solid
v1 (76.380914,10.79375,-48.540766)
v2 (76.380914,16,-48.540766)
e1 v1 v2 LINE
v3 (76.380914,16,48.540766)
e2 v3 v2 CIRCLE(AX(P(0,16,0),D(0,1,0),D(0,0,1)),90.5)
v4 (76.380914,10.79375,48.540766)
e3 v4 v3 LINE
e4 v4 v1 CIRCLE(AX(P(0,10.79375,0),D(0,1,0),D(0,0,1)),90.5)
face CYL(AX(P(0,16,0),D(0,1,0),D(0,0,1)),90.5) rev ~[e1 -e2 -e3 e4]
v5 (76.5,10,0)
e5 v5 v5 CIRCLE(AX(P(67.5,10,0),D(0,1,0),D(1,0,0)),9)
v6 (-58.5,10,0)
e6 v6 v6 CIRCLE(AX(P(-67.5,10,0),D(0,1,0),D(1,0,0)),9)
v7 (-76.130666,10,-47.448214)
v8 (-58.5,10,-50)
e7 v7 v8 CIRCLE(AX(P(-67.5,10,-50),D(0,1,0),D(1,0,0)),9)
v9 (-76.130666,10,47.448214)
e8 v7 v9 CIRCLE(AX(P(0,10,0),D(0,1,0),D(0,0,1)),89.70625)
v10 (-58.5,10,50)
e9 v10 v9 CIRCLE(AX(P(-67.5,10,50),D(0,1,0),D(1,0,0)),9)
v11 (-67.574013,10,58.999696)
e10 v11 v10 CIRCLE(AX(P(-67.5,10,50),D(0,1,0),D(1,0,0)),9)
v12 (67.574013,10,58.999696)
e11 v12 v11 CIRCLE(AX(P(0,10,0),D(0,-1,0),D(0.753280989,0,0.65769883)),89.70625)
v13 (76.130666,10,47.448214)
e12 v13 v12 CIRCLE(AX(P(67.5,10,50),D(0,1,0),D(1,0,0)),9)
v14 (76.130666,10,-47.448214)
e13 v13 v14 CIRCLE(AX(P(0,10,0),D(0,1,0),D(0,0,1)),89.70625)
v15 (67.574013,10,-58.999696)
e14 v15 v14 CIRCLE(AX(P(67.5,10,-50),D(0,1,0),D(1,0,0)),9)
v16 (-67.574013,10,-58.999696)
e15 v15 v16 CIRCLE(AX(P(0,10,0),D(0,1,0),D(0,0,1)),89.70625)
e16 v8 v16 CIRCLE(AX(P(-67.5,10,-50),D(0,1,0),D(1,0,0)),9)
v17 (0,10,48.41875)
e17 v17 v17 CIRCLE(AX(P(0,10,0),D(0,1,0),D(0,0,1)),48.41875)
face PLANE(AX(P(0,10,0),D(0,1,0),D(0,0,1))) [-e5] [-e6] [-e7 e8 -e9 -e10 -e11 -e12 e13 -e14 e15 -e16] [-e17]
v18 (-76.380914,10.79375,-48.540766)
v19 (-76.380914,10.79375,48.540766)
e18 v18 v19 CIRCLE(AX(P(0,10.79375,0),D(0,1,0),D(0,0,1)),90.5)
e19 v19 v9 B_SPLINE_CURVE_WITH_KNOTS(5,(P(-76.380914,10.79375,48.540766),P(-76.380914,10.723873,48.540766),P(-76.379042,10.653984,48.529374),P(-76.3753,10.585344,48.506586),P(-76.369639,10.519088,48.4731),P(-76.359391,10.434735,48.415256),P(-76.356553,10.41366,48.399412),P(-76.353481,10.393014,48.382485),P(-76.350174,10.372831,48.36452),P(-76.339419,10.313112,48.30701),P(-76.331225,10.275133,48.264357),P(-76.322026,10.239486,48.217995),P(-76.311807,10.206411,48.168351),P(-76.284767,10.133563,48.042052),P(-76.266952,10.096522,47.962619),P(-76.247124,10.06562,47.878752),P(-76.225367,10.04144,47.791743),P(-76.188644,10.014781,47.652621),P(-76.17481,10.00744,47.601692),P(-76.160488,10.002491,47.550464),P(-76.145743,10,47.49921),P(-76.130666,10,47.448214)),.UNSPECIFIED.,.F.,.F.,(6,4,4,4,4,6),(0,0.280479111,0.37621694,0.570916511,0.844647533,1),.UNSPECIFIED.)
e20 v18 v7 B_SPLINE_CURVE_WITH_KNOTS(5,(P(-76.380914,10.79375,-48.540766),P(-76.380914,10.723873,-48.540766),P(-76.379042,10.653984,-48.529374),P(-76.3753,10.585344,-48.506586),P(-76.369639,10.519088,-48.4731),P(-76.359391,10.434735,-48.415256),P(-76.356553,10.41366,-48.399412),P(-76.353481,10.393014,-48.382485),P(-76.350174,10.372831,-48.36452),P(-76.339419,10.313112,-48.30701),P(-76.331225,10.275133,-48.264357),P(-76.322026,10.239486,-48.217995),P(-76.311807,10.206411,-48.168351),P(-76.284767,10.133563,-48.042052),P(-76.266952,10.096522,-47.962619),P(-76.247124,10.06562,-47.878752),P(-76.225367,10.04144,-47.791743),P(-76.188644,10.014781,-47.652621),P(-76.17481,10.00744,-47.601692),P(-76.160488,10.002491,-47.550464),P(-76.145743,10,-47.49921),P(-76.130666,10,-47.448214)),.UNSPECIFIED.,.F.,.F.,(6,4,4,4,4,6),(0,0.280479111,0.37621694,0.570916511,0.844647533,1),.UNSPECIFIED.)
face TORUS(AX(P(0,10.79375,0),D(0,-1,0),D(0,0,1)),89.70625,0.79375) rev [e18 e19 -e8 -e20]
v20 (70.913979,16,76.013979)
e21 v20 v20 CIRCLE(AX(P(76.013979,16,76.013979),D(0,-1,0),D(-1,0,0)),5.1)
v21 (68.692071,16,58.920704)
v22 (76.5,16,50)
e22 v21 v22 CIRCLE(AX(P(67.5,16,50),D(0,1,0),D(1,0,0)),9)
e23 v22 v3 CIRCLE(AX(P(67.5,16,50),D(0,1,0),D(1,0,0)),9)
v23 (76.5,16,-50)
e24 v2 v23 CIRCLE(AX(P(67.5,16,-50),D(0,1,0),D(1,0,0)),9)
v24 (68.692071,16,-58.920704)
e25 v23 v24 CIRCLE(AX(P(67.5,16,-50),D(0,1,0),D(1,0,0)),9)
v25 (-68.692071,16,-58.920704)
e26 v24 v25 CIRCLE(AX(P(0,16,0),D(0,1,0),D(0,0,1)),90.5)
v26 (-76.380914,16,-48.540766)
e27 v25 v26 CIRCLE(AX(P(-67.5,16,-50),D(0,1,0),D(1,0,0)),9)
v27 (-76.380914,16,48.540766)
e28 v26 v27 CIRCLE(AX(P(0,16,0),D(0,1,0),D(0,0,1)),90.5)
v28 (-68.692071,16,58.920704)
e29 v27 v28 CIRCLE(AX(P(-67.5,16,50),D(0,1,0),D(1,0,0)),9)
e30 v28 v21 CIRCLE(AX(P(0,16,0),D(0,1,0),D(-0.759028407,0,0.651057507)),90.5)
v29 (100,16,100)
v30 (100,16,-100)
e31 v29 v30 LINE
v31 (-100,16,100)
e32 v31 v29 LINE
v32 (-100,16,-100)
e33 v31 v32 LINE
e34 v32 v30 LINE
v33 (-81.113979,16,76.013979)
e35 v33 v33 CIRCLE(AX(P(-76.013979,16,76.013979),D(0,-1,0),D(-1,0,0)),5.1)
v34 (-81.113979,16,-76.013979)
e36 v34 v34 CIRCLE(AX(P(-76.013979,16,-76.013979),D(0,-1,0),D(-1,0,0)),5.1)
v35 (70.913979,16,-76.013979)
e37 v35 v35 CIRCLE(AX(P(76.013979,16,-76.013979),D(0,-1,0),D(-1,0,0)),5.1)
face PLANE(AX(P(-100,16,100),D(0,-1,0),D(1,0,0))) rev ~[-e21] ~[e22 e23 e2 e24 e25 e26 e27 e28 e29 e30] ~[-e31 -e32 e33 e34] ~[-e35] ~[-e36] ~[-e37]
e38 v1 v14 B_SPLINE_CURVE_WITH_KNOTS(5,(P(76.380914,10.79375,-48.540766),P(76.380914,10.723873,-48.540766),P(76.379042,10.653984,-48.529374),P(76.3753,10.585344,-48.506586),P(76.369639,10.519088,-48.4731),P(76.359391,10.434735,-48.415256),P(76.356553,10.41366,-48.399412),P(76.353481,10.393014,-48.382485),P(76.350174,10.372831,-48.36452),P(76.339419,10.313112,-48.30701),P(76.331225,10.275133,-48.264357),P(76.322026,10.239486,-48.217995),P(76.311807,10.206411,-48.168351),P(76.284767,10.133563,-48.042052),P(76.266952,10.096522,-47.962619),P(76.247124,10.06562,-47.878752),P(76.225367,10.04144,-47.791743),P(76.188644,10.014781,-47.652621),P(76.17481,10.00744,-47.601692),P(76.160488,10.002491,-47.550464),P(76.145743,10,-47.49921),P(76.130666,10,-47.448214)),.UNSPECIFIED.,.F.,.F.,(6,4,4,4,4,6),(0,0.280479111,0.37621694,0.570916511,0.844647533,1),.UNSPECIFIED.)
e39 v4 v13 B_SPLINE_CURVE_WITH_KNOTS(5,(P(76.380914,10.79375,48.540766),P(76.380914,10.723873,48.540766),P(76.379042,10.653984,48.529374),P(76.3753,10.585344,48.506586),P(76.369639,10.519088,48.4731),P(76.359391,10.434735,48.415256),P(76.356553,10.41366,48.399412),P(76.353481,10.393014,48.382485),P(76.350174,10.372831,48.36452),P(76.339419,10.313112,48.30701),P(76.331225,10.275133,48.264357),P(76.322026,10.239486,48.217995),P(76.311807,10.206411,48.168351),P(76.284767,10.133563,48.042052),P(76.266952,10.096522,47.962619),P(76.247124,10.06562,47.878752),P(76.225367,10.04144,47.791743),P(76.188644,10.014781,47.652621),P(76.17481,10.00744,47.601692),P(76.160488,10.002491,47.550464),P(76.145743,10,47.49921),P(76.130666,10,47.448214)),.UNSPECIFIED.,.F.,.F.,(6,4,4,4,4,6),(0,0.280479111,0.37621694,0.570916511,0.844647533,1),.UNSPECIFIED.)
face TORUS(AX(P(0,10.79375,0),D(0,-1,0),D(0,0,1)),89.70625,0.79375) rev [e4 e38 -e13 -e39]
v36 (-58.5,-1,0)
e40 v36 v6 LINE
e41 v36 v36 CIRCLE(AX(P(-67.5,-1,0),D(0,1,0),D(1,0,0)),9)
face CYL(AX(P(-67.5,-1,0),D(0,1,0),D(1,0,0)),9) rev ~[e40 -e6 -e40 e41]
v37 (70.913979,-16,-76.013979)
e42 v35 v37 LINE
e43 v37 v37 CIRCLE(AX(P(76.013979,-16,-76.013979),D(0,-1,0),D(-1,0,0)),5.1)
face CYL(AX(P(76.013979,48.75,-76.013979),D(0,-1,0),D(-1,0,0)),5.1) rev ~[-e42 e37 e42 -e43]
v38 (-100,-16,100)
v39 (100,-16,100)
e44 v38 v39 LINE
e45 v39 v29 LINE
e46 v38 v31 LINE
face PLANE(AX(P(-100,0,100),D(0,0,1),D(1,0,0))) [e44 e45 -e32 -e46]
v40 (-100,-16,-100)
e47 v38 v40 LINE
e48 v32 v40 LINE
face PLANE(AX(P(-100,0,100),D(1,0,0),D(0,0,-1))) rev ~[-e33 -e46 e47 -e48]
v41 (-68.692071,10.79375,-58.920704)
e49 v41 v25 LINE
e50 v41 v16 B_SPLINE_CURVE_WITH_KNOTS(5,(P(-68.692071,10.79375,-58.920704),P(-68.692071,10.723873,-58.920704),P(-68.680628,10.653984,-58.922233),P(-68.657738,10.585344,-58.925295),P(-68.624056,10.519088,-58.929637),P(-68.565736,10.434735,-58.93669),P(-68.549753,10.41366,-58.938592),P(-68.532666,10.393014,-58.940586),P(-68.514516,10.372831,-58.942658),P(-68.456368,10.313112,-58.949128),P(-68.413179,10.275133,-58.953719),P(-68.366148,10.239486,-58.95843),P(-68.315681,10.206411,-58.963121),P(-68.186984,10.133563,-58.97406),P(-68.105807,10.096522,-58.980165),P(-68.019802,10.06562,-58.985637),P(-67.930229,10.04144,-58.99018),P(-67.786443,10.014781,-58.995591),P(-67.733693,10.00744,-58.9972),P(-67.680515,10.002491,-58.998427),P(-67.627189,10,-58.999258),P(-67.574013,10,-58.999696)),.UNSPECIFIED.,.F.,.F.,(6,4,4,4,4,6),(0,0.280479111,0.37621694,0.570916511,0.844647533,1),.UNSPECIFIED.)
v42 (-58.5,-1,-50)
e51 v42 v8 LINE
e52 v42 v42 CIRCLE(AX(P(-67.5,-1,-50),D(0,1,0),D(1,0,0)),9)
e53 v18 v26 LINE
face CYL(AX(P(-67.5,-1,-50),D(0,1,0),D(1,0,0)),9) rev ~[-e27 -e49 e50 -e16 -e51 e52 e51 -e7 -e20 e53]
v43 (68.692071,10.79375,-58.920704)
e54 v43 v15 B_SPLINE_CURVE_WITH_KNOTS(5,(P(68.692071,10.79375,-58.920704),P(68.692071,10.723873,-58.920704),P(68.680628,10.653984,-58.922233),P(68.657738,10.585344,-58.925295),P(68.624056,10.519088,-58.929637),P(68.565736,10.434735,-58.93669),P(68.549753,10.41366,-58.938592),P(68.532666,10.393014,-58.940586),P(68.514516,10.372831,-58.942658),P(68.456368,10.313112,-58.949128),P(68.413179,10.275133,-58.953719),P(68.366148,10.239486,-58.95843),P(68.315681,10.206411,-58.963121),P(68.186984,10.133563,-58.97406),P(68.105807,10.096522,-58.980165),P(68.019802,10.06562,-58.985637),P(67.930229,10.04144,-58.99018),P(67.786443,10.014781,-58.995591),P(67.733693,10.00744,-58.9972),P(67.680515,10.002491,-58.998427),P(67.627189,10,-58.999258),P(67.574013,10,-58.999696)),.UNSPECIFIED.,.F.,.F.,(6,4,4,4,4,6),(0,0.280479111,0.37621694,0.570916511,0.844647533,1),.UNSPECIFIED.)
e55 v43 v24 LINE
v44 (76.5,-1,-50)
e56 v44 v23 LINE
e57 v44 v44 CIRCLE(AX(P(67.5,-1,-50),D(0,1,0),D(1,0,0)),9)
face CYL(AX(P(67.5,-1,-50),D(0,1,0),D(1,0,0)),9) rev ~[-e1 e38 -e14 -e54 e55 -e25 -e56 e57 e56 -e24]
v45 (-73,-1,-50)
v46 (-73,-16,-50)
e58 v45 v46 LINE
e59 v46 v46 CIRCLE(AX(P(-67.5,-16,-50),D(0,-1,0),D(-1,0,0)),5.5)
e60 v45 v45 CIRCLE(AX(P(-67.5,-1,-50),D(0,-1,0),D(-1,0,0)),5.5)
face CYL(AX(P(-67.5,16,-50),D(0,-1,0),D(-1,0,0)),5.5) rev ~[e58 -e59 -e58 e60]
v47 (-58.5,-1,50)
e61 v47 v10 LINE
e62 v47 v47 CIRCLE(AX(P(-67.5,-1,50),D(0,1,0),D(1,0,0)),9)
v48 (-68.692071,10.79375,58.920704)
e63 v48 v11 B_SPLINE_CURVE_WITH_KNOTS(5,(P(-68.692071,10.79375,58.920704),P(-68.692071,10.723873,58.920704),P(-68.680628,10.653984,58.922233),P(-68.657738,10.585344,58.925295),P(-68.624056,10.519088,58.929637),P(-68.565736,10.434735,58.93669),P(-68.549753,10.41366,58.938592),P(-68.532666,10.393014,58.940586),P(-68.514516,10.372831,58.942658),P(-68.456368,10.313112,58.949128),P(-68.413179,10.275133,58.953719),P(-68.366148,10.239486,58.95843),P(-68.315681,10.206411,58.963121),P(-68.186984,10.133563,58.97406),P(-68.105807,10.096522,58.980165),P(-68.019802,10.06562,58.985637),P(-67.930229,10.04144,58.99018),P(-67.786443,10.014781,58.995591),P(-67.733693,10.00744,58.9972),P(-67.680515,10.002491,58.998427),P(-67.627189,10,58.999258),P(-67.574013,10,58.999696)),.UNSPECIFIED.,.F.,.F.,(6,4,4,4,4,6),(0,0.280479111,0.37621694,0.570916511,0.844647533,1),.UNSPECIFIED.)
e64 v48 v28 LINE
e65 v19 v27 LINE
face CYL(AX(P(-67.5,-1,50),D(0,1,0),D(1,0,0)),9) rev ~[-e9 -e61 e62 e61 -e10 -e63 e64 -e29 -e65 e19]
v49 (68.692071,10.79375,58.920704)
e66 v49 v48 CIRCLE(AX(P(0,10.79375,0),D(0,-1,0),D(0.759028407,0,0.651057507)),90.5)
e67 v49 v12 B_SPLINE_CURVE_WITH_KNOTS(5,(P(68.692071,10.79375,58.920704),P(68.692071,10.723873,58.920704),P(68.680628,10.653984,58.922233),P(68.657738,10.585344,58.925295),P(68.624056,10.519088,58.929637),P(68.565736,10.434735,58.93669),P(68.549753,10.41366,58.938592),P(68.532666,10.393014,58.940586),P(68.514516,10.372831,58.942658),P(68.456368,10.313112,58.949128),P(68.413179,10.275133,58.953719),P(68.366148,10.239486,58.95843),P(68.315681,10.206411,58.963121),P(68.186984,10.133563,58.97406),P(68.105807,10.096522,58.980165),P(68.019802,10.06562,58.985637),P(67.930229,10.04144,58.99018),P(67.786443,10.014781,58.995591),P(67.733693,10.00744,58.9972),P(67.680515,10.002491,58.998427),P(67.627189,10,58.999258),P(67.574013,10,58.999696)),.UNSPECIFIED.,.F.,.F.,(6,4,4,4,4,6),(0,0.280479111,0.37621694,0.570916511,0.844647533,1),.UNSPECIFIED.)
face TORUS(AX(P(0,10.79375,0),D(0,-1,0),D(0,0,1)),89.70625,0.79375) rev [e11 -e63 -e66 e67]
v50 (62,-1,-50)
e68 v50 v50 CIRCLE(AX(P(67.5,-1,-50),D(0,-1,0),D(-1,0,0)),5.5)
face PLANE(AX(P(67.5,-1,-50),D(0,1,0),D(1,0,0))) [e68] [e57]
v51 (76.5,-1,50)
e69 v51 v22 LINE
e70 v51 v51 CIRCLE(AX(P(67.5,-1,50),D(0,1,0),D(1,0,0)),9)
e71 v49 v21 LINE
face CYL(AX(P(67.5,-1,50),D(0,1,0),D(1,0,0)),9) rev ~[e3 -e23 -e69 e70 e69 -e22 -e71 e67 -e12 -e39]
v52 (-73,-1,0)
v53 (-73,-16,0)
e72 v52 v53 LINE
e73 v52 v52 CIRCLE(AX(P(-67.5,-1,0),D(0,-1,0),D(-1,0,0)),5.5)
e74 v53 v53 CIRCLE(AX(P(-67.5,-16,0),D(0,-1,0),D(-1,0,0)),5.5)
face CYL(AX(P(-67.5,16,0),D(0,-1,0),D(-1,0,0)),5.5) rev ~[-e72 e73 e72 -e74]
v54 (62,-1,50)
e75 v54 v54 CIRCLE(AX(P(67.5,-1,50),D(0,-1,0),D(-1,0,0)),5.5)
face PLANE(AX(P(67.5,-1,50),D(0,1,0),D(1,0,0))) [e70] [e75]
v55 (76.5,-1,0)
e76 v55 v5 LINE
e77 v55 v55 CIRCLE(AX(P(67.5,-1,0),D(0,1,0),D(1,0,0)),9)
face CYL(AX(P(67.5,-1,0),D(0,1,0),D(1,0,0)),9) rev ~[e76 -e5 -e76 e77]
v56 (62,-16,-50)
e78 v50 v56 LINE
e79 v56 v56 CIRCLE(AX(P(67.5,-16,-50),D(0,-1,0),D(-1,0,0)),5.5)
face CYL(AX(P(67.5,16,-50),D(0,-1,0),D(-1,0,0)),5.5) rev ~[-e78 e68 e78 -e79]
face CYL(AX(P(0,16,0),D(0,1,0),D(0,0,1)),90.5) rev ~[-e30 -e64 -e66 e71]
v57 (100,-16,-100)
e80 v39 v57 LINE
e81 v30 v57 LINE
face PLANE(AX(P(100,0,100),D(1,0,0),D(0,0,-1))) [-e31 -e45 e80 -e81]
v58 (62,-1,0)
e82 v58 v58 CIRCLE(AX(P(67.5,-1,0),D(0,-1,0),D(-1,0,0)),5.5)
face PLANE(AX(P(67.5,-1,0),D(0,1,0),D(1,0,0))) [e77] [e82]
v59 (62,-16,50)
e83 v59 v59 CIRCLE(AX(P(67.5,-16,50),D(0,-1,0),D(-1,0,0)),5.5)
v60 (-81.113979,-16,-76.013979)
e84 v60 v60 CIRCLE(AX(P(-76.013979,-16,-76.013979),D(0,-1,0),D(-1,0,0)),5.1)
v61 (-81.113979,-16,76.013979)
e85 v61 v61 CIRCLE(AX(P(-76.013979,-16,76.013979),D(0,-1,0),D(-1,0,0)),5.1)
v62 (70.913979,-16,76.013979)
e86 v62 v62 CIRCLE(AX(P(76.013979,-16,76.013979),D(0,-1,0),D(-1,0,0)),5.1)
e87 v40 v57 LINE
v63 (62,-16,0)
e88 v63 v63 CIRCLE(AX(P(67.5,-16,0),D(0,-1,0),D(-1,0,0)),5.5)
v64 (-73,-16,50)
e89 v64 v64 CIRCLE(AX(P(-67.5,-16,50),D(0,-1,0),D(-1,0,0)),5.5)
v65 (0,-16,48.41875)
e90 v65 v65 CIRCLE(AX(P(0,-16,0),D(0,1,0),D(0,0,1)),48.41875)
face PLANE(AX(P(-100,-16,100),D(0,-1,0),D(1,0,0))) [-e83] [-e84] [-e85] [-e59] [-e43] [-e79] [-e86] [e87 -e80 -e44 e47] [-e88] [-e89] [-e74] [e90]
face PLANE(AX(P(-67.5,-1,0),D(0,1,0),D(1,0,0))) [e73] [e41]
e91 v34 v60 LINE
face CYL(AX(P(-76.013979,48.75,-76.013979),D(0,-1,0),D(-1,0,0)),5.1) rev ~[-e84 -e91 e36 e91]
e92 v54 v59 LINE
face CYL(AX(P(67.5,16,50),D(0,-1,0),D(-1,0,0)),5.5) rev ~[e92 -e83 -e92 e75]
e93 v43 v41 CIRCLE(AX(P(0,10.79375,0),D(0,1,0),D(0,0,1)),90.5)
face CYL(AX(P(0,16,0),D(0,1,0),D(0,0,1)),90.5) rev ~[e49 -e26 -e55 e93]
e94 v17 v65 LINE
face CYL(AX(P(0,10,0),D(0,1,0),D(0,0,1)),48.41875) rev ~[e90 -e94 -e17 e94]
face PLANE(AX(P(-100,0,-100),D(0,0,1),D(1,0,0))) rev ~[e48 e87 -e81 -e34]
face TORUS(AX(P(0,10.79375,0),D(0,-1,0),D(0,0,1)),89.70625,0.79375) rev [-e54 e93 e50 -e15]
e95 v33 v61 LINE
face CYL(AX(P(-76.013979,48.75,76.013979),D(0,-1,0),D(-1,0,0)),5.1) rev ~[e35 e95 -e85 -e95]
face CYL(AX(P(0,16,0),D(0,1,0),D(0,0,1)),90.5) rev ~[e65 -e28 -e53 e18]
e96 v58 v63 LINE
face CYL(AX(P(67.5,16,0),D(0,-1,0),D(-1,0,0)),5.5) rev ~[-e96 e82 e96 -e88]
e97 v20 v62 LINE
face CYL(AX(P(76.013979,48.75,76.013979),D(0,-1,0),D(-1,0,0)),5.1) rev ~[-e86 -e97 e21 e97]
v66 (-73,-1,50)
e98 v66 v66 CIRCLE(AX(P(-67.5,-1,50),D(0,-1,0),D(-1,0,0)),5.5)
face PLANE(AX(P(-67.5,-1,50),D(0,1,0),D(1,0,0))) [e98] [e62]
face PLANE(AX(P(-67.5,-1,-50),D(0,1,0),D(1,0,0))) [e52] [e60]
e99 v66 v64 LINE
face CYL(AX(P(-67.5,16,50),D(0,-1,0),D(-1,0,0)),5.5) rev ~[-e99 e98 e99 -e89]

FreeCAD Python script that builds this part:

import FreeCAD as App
import Part
import Sketcher

V = App.Vector


def edges_at(feature, points):
    """Names of the edges that pass closest to the given points."""
    edges = feature.Shape.Edges
    near = lambda p: min(range(len(edges)), key=lambda i: edges[i].distToShape(Part.Vertex(*p))[0])
    return sorted({f"Edge{near(p) + 1}" for p in points})


def add_polygon(sketch, points):
    """Adds a closed chain of lines whose ends are joined by coincident constraints."""
    first, n = sketch.GeometryCount, len(points)
    for a, b in zip(points, points[1:] + points[:1]):
        sketch.addGeometry(Part.LineSegment(App.Vector(*a, 0), App.Vector(*b, 0)), False)
    for i in range(n):
        sketch.addConstraint(Sketcher.Constraint("Coincident", first + i, 2, first + (i + 1) % n, 1))

doc = App.newDocument("Part")
body = doc.addObject("PartDesign::Body", "Body")

sketch1 = doc.addObject("Sketcher::SketchObject", "Sketch")
body.addObject(sketch1)
sketch1.AttachmentSupport = (doc.XZ_Plane, [""])
sketch1.MapMode = "FlatFace"
add_polygon(sketch1, [(-100, -100), (-100, 100), (100, 100), (100, -100)])
sketch1.addConstraint([
    Sketcher.Constraint("Vertical", 0),
    Sketcher.Constraint("Horizontal", 1),
    Sketcher.Constraint("Vertical", 2),
    Sketcher.Constraint("Horizontal", 3),
    Sketcher.Constraint("Symmetric", 0, 2, 2, 2, -1, 1),
    Sketcher.Constraint("Equal", 3, 0),
    Sketcher.Constraint("DistanceX", 1, 1, 1, 2, 200.0),
])
pad1 = doc.addObject("PartDesign::Pad", "Pad")
body.addObject(pad1)
pad1.Profile = sketch1
pad1.Length = 38.1
pad1.Midplane = True

sketch2 = doc.addObject("Sketcher::SketchObject", "Sketch001")
body.addObject(sketch2)
sketch2.AttachmentSupport = (doc.XY_Plane, [""])
sketch2.MapMode = "FlatFace"
sketch2.AttachmentOffset = App.Placement(V(0, 0, 100), App.Rotation())
add_polygon(sketch2, [(-100, 19.1), (-100, 16), (100, 16), (100, 19.1)])
add_polygon(sketch2, [(-100, -16), (-100, -19.1), (100, -19.1), (100, -16)])
sketch2.addConstraint([
    Sketcher.Constraint("Vertical", 0),
    Sketcher.Constraint("Horizontal", 1),
    Sketcher.Constraint("Vertical", 2),
    Sketcher.Constraint("Horizontal", 3),
    Sketcher.Constraint("Vertical", 4),
    Sketcher.Constraint("Horizontal", 5),
    Sketcher.Constraint("Vertical", 6),
    Sketcher.Constraint("Horizontal", 7),
    Sketcher.Constraint("Symmetric", 2, 2, 4, 2, -1, 1),
    Sketcher.Constraint("Symmetric", 0, 2, 6, 2, -1, 1),
    Sketcher.Constraint("Vertical", 3, 2, 4, 2),
    Sketcher.Constraint("DistanceX", 1, 1, 1, 2, 200.0),
    Sketcher.Constraint("DistanceY", -1, 1, 0, 2, 16.0),
    Sketcher.Constraint("DistanceY", 0, 2, 0, 1, 3.05),
])
pocket1 = doc.addObject("PartDesign::Pocket", "Pocket")
body.addObject(pocket1)
pocket1.Profile = sketch2
pocket1.Type = "ThroughAll"

sketch3 = doc.addObject("Sketcher::SketchObject", "Sketch002")
body.addObject(sketch3)
sketch3.AttachmentSupport = (doc.XZ_Plane, [""])
sketch3.MapMode = "FlatFace"
sketch3.AttachmentOffset = App.Placement(V(0, 0, -16), App.Rotation())
sketch3.addGeometry(Part.Circle(V(0, 0, 0), V(0, 0, 1), 90), False)
sketch3.addConstraint([
    Sketcher.Constraint("Coincident", 0, 3, -1, 1),
    Sketcher.Constraint("Diameter", 0, 181.0),
])
pocket2 = doc.addObject("PartDesign::Pocket", "Pocket001")
body.addObject(pocket2)
pocket2.Profile = sketch3
pocket2.Length = 6
pocket2.Reversed = True

sketch4 = doc.addObject("Sketcher::SketchObject", "Sketch003")
body.addObject(sketch4)
sketch4.AttachmentSupport = (doc.XZ_Plane, [""])
sketch4.MapMode = "FlatFace"
sketch4.AttachmentOffset = App.Placement(V(0, 0, -16), App.Rotation())
sketch4.addGeometry([
    Part.Circle(V(-76, -76, 0), V(0, 0, 1), 5),
    Part.Circle(V(76, -76, 0), V(0, 0, 1), 5),
    Part.Circle(V(76, 76, 0), V(0, 0, 1), 5),
    Part.Circle(V(-76, 76, 0), V(0, 0, 1), 5),
], False)
sketch4.addConstraint([
    Sketcher.Constraint("Equal", 0, 1),
    Sketcher.Constraint("Equal", 1, 2),
    Sketcher.Constraint("Equal", 2, 3),
    Sketcher.Constraint("Symmetric", 0, 3, 2, 3, -1, 1),
    Sketcher.Constraint("Symmetric", 1, 3, 3, 3, -1, 1),
    Sketcher.Constraint("Symmetric", 0, 3, 1, 3, -2),
    Sketcher.Constraint("Diameter", 0, 10.2),
    Sketcher.Constraint("DistanceX", 0, 3, -1, 1, 76.013979),
    Sketcher.Constraint("DistanceY", 0, 3, -1, 1, 76.013979),
])
doc.recompute()
hole = doc.addObject("PartDesign::Hole", "Hole")
body.addObject(hole)
hole.Profile = sketch4
hole.ThreadType = "None"
hole.Diameter = 10.2
hole.DepthType = "Dimension"
hole.Depth = 32.75
hole.DrillPoint = "Angled"
hole.DrillPointAngle = 118
hole.Reversed = True

sketch5 = doc.addObject("Sketcher::SketchObject", "Sketch004")
body.addObject(sketch5)
sketch5.AttachmentSupport = (doc.XZ_Plane, [""])
sketch5.MapMode = "FlatFace"
sketch5.AttachmentOffset = App.Placement(V(0, 0, -10), App.Rotation())
sketch5.addGeometry(Part.Circle(V(0, 0, 0), V(0, 0, 1), 48), False)
sketch5.addConstraint([
    Sketcher.Constraint("Coincident", 0, 3, -1, 1),
    Sketcher.Constraint("Diameter", 0, 96.8375),
])
pocket3 = doc.addObject("PartDesign::Pocket", "Pocket002")
body.addObject(pocket3)
pocket3.Profile = sketch5
pocket3.Type = "ThroughAll"
pocket3.Reversed = True
doc.recompute()

fillet = doc.addObject("PartDesign::Fillet", "Fillet")
body.addObject(fillet)
fillet.Base = (pocket3, edges_at(pocket3, [(0, 10, -90.5)]))
fillet.Radius = 0.79375

sketch6 = doc.addObject("Sketcher::SketchObject", "Sketch005")
body.addObject(sketch6)
sketch6.AttachmentSupport = (doc.XZ_Plane, [""])
sketch6.MapMode = "FlatFace"
sketch6.AttachmentOffset = App.Placement(V(0, 0, -16), App.Rotation())
sketch6.addGeometry([
    Part.Circle(V(-68, 50, 0), V(0, 0, 1), 6),
    Part.Circle(V(-68, 0, 0), V(0, 0, 1), 6),
    Part.Circle(V(-68, -50, 0), V(0, 0, 1), 6),
    Part.Circle(V(68, -50, 0), V(0, 0, 1), 6),
    Part.Circle(V(68, 0, 0), V(0, 0, 1), 6),
    Part.Circle(V(68, 50, 0), V(0, 0, 1), 6),
], False)
sketch6.addConstraint([
    Sketcher.Constraint("Equal", 0, 1),
    Sketcher.Constraint("Equal", 1, 2),
    Sketcher.Constraint("Equal", 2, 3),
    Sketcher.Constraint("Equal", 3, 4),
    Sketcher.Constraint("Equal", 4, 5),
    Sketcher.Constraint("Symmetric", 0, 3, 3, 3, -1, 1),
    Sketcher.Constraint("Symmetric", 1, 3, 4, 3, -1, 1),
    Sketcher.Constraint("Symmetric", 2, 3, 5, 3, -1, 1),
    Sketcher.Constraint("Symmetric", 2, 3, 3, 3, -2),
    Sketcher.Constraint("PointOnObject", 1, 3, -1),
    Sketcher.Constraint("Vertical", 0, 3, 1, 3),
    Sketcher.Constraint("Diameter", 0, 11.0),
    Sketcher.Constraint("DistanceY", -1, 1, 0, 3, 50.0),
    Sketcher.Constraint("DistanceX", 2, 3, 3, 3, 135.0),
])
doc.recompute()
hole2 = doc.addObject("PartDesign::Hole", "Hole001")
body.addObject(hole2)
hole2.Profile = sketch6
hole2.ThreadType = "None"
hole2.Diameter = 11
hole2.DepthType = "ThroughAll"
hole2.HoleCutType = "Counterbore"
hole2.HoleCutDiameter = 18
hole2.HoleCutDepth = 17
hole2.Reversed = True

doc.recompute()
